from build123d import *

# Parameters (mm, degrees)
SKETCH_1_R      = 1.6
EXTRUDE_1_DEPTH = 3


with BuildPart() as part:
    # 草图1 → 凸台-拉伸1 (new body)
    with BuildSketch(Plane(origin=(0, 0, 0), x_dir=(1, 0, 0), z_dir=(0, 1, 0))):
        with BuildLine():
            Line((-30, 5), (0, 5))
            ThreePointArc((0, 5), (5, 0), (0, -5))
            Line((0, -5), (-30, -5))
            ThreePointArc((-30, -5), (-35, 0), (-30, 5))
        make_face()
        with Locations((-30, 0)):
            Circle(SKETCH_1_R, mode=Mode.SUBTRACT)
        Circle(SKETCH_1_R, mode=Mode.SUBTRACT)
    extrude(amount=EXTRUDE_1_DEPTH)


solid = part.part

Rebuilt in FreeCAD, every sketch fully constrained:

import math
import FreeCAD as App
import Part
import Sketcher

V = App.Vector

doc = App.newDocument("Part")
params = doc.addObject("Spreadsheet::Sheet", "Params")
for row, (alias, value) in enumerate([
    ("sketch1_radius", "5 mm"),
    ("sketch1_diameter", "3.2 mm"),
    ("sketch1_width", "30 mm"),
    ("pad1_length", "3 mm"),
], start=1):
    params.set(f"A{row}", alias)
    params.set(f"B{row}", "=" + value)
    params.setAlias(f"B{row}", alias)

body = doc.addObject("PartDesign::Body", "Body")

# Sketch on XZ plane
sketch1 = body.newObject("Sketcher::SketchObject", "Sketch")
sketch1.AttachmentSupport = (doc.getObject("XZ_Plane"), [""])
sketch1.MapMode = "FlatFace"
sketch1.addGeometry([
    Part.LineSegment(V(0, -5, 0), V(-30, -5, 0)),  # 0
    Part.ArcOfCircle(Part.Circle(V(-30, 0, 0), V(0, 0, 1), 5), math.radians(90), math.radians(270)),  # 1
    Part.LineSegment(V(-30, 5, 0), V(0, 5, 0)),  # 2
    Part.ArcOfCircle(Part.Circle(V(0, 0, 0), V(0, 0, 1), 5), math.radians(-90), math.radians(90)),  # 3
    Part.Circle(V(0, 0, 0), V(0, 0, 1), 1.6),  # 4
    Part.Circle(V(-30, 0, 0), V(0, 0, 1), 1.6),  # 5
], False)
sketch1.addConstraint([
    Sketcher.Constraint("Tangent", 0, 2, 1, 2),
    Sketcher.Constraint("Tangent", 1, 1, 2, 1),
    Sketcher.Constraint("Tangent", 2, 2, 3, 2),
    Sketcher.Constraint("Tangent", 3, 1, 0, 1),
    Sketcher.Constraint("Horizontal", 0),
    Sketcher.Constraint("Horizontal", 2),
    Sketcher.Constraint("Coincident", 3, 3, -1, 1),
    Sketcher.Constraint("Coincident", 4, 3, -1, 1),
    Sketcher.Constraint("Coincident", 5, 3, 1, 3),
    Sketcher.Constraint("Equal", 4, 5),
    Sketcher.Constraint("Radius", 1, 5.0),
    Sketcher.Constraint("Diameter", 4, 3.2),
    Sketcher.Constraint("DistanceX", 0, 2, 0, 1, 30.0),
])
sketch1.setExpression("Constraints[10]", "Params.sketch1_radius")
sketch1.setExpression("Constraints[11]", "Params.sketch1_diameter")
sketch1.setExpression("Constraints[12]", "Params.sketch1_width")
pad1 = body.newObject("PartDesign::Pad", "Pad")
pad1.Profile = sketch1
pad1.setExpression("Length", "Params.pad1_length")
pad1.Reversed = True

doc.recompute()
